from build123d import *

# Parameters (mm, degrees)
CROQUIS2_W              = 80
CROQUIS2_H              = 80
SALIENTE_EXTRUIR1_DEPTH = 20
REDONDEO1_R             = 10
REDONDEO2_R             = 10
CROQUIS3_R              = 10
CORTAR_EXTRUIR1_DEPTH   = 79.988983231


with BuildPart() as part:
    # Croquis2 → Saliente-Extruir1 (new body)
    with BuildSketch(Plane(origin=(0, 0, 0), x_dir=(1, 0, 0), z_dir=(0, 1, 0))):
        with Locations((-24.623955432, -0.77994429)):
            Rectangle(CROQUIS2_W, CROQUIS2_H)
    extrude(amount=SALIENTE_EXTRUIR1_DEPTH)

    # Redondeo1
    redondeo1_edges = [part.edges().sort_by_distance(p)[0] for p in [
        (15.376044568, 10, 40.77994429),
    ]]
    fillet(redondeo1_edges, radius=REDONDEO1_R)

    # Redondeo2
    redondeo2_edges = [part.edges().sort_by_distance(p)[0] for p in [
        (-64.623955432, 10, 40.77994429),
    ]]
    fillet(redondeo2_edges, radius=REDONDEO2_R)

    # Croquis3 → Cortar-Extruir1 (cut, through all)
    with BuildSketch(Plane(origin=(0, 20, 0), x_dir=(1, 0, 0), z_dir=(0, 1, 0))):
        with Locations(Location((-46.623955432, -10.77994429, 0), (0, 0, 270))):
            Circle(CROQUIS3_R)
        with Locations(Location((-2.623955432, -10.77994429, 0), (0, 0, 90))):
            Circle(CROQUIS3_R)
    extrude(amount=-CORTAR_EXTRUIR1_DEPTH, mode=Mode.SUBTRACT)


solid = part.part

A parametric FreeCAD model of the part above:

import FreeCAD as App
import Part
import Sketcher

V = App.Vector
Q = App.Units.Quantity


def edges_at(feature, points):
    """Names of the edges that pass closest to the given points."""
    edges = feature.Shape.Edges
    near = lambda p: min(range(len(edges)), key=lambda i: edges[i].distToShape(Part.Vertex(*p))[0])
    return sorted({f"Edge{near(p) + 1}" for p in points})

doc = App.newDocument("Part")
body = doc.addObject("PartDesign::Body", "Body")

# Sketch on XZ plane
sketch1 = body.newObject("Sketcher::SketchObject", "Sketch")
sketch1.AttachmentSupport = (doc.getObject("XZ_Plane"), [""])
sketch1.MapMode = "FlatFace"
sketch1.addGeometry(Part.LineSegment(V(-65, -39, 0), V(-65, 41, 0)), False)
sketch1.addGeometry(Part.LineSegment(V(-65, 41, 0), V(15, 41, 0)), False)
sketch1.addGeometry(Part.LineSegment(V(15, 41, 0), V(15, -39, 0)), False)
sketch1.addGeometry(Part.LineSegment(V(15, -39, 0), V(-65, -39, 0)), False)
sketch1.addConstraint(Sketcher.Constraint("Coincident", 0, 2, 1, 1))
sketch1.addConstraint(Sketcher.Constraint("Coincident", 1, 2, 2, 1))
sketch1.addConstraint(Sketcher.Constraint("Coincident", 2, 2, 3, 1))
sketch1.addConstraint(Sketcher.Constraint("Coincident", 3, 2, 0, 1))
sketch1.addConstraint(Sketcher.Constraint("Vertical", 0))
sketch1.addConstraint(Sketcher.Constraint("Horizontal", 1))
sketch1.addConstraint(Sketcher.Constraint("Vertical", 2))
sketch1.addConstraint(Sketcher.Constraint("Horizontal", 3))
sketch1.addConstraint(Sketcher.Constraint("Equal", 3, 0))
sketch1.addConstraint(Sketcher.Constraint("DistanceX", 1, 1, 1, 2, Q("80 mm")))
sketch1.addConstraint(Sketcher.Constraint("DistanceX", 0, 2, -1, 1, Q("64.623955 mm")))
sketch1.addConstraint(Sketcher.Constraint("DistanceY", -1, 1, 0, 2, Q("40.779944 mm")))
pad1 = body.newObject("PartDesign::Pad", "Pad")
pad1.Profile = sketch1
pad1.Length = 20
pad1.Reversed = True
doc.recompute()

fillet = body.newObject("PartDesign::Fillet", "Fillet")
fillet.Base = (pad1, edges_at(pad1, [(15.376, 10, 40.78)]))
fillet.Radius = 10
doc.recompute()

fillet2 = body.newObject("PartDesign::Fillet", "Fillet001")
fillet2.Base = (fillet, edges_at(fillet, [(-64.624, 10, 40.78)]))
fillet2.Radius = 10

# Sketch on XZ plane
sketch2 = body.newObject("Sketcher::SketchObject", "Sketch001")
sketch2.AttachmentSupport = (doc.getObject("XZ_Plane"), [""])
sketch2.MapMode = "FlatFace"
sketch2.AttachmentOffset = App.Placement(V(0, 0, -20), App.Rotation())
sketch2.addGeometry(Part.Circle(V(-47, 11, 0), V(0, 0, 1), 10), False)
sketch2.addGeometry(Part.Circle(V(-3, 11, 0), V(0, 0, 1), 10), False)
sketch2.addConstraint(Sketcher.Constraint("Equal", 0, 1))
sketch2.addConstraint(Sketcher.Constraint("Horizontal", 0, 3, 1, 3))
sketch2.addConstraint(Sketcher.Constraint("Diameter", 0, Q("20 mm")))
sketch2.addConstraint(Sketcher.Constraint("DistanceX", 0, 3, 1, 3, Q("44 mm")))
sketch2.addConstraint(Sketcher.Constraint("DistanceX", 0, 3, -1, 1, Q("46.623955 mm")))
sketch2.addConstraint(Sketcher.Constraint("DistanceY", -1, 1, 0, 3, Q("10.779944 mm")))
pocket1 = body.newObject("PartDesign::Pocket", "Pocket")
pocket1.Profile = sketch2
pocket1.Type = "ThroughAll"
pocket1.Reversed = True

doc.recompute()
